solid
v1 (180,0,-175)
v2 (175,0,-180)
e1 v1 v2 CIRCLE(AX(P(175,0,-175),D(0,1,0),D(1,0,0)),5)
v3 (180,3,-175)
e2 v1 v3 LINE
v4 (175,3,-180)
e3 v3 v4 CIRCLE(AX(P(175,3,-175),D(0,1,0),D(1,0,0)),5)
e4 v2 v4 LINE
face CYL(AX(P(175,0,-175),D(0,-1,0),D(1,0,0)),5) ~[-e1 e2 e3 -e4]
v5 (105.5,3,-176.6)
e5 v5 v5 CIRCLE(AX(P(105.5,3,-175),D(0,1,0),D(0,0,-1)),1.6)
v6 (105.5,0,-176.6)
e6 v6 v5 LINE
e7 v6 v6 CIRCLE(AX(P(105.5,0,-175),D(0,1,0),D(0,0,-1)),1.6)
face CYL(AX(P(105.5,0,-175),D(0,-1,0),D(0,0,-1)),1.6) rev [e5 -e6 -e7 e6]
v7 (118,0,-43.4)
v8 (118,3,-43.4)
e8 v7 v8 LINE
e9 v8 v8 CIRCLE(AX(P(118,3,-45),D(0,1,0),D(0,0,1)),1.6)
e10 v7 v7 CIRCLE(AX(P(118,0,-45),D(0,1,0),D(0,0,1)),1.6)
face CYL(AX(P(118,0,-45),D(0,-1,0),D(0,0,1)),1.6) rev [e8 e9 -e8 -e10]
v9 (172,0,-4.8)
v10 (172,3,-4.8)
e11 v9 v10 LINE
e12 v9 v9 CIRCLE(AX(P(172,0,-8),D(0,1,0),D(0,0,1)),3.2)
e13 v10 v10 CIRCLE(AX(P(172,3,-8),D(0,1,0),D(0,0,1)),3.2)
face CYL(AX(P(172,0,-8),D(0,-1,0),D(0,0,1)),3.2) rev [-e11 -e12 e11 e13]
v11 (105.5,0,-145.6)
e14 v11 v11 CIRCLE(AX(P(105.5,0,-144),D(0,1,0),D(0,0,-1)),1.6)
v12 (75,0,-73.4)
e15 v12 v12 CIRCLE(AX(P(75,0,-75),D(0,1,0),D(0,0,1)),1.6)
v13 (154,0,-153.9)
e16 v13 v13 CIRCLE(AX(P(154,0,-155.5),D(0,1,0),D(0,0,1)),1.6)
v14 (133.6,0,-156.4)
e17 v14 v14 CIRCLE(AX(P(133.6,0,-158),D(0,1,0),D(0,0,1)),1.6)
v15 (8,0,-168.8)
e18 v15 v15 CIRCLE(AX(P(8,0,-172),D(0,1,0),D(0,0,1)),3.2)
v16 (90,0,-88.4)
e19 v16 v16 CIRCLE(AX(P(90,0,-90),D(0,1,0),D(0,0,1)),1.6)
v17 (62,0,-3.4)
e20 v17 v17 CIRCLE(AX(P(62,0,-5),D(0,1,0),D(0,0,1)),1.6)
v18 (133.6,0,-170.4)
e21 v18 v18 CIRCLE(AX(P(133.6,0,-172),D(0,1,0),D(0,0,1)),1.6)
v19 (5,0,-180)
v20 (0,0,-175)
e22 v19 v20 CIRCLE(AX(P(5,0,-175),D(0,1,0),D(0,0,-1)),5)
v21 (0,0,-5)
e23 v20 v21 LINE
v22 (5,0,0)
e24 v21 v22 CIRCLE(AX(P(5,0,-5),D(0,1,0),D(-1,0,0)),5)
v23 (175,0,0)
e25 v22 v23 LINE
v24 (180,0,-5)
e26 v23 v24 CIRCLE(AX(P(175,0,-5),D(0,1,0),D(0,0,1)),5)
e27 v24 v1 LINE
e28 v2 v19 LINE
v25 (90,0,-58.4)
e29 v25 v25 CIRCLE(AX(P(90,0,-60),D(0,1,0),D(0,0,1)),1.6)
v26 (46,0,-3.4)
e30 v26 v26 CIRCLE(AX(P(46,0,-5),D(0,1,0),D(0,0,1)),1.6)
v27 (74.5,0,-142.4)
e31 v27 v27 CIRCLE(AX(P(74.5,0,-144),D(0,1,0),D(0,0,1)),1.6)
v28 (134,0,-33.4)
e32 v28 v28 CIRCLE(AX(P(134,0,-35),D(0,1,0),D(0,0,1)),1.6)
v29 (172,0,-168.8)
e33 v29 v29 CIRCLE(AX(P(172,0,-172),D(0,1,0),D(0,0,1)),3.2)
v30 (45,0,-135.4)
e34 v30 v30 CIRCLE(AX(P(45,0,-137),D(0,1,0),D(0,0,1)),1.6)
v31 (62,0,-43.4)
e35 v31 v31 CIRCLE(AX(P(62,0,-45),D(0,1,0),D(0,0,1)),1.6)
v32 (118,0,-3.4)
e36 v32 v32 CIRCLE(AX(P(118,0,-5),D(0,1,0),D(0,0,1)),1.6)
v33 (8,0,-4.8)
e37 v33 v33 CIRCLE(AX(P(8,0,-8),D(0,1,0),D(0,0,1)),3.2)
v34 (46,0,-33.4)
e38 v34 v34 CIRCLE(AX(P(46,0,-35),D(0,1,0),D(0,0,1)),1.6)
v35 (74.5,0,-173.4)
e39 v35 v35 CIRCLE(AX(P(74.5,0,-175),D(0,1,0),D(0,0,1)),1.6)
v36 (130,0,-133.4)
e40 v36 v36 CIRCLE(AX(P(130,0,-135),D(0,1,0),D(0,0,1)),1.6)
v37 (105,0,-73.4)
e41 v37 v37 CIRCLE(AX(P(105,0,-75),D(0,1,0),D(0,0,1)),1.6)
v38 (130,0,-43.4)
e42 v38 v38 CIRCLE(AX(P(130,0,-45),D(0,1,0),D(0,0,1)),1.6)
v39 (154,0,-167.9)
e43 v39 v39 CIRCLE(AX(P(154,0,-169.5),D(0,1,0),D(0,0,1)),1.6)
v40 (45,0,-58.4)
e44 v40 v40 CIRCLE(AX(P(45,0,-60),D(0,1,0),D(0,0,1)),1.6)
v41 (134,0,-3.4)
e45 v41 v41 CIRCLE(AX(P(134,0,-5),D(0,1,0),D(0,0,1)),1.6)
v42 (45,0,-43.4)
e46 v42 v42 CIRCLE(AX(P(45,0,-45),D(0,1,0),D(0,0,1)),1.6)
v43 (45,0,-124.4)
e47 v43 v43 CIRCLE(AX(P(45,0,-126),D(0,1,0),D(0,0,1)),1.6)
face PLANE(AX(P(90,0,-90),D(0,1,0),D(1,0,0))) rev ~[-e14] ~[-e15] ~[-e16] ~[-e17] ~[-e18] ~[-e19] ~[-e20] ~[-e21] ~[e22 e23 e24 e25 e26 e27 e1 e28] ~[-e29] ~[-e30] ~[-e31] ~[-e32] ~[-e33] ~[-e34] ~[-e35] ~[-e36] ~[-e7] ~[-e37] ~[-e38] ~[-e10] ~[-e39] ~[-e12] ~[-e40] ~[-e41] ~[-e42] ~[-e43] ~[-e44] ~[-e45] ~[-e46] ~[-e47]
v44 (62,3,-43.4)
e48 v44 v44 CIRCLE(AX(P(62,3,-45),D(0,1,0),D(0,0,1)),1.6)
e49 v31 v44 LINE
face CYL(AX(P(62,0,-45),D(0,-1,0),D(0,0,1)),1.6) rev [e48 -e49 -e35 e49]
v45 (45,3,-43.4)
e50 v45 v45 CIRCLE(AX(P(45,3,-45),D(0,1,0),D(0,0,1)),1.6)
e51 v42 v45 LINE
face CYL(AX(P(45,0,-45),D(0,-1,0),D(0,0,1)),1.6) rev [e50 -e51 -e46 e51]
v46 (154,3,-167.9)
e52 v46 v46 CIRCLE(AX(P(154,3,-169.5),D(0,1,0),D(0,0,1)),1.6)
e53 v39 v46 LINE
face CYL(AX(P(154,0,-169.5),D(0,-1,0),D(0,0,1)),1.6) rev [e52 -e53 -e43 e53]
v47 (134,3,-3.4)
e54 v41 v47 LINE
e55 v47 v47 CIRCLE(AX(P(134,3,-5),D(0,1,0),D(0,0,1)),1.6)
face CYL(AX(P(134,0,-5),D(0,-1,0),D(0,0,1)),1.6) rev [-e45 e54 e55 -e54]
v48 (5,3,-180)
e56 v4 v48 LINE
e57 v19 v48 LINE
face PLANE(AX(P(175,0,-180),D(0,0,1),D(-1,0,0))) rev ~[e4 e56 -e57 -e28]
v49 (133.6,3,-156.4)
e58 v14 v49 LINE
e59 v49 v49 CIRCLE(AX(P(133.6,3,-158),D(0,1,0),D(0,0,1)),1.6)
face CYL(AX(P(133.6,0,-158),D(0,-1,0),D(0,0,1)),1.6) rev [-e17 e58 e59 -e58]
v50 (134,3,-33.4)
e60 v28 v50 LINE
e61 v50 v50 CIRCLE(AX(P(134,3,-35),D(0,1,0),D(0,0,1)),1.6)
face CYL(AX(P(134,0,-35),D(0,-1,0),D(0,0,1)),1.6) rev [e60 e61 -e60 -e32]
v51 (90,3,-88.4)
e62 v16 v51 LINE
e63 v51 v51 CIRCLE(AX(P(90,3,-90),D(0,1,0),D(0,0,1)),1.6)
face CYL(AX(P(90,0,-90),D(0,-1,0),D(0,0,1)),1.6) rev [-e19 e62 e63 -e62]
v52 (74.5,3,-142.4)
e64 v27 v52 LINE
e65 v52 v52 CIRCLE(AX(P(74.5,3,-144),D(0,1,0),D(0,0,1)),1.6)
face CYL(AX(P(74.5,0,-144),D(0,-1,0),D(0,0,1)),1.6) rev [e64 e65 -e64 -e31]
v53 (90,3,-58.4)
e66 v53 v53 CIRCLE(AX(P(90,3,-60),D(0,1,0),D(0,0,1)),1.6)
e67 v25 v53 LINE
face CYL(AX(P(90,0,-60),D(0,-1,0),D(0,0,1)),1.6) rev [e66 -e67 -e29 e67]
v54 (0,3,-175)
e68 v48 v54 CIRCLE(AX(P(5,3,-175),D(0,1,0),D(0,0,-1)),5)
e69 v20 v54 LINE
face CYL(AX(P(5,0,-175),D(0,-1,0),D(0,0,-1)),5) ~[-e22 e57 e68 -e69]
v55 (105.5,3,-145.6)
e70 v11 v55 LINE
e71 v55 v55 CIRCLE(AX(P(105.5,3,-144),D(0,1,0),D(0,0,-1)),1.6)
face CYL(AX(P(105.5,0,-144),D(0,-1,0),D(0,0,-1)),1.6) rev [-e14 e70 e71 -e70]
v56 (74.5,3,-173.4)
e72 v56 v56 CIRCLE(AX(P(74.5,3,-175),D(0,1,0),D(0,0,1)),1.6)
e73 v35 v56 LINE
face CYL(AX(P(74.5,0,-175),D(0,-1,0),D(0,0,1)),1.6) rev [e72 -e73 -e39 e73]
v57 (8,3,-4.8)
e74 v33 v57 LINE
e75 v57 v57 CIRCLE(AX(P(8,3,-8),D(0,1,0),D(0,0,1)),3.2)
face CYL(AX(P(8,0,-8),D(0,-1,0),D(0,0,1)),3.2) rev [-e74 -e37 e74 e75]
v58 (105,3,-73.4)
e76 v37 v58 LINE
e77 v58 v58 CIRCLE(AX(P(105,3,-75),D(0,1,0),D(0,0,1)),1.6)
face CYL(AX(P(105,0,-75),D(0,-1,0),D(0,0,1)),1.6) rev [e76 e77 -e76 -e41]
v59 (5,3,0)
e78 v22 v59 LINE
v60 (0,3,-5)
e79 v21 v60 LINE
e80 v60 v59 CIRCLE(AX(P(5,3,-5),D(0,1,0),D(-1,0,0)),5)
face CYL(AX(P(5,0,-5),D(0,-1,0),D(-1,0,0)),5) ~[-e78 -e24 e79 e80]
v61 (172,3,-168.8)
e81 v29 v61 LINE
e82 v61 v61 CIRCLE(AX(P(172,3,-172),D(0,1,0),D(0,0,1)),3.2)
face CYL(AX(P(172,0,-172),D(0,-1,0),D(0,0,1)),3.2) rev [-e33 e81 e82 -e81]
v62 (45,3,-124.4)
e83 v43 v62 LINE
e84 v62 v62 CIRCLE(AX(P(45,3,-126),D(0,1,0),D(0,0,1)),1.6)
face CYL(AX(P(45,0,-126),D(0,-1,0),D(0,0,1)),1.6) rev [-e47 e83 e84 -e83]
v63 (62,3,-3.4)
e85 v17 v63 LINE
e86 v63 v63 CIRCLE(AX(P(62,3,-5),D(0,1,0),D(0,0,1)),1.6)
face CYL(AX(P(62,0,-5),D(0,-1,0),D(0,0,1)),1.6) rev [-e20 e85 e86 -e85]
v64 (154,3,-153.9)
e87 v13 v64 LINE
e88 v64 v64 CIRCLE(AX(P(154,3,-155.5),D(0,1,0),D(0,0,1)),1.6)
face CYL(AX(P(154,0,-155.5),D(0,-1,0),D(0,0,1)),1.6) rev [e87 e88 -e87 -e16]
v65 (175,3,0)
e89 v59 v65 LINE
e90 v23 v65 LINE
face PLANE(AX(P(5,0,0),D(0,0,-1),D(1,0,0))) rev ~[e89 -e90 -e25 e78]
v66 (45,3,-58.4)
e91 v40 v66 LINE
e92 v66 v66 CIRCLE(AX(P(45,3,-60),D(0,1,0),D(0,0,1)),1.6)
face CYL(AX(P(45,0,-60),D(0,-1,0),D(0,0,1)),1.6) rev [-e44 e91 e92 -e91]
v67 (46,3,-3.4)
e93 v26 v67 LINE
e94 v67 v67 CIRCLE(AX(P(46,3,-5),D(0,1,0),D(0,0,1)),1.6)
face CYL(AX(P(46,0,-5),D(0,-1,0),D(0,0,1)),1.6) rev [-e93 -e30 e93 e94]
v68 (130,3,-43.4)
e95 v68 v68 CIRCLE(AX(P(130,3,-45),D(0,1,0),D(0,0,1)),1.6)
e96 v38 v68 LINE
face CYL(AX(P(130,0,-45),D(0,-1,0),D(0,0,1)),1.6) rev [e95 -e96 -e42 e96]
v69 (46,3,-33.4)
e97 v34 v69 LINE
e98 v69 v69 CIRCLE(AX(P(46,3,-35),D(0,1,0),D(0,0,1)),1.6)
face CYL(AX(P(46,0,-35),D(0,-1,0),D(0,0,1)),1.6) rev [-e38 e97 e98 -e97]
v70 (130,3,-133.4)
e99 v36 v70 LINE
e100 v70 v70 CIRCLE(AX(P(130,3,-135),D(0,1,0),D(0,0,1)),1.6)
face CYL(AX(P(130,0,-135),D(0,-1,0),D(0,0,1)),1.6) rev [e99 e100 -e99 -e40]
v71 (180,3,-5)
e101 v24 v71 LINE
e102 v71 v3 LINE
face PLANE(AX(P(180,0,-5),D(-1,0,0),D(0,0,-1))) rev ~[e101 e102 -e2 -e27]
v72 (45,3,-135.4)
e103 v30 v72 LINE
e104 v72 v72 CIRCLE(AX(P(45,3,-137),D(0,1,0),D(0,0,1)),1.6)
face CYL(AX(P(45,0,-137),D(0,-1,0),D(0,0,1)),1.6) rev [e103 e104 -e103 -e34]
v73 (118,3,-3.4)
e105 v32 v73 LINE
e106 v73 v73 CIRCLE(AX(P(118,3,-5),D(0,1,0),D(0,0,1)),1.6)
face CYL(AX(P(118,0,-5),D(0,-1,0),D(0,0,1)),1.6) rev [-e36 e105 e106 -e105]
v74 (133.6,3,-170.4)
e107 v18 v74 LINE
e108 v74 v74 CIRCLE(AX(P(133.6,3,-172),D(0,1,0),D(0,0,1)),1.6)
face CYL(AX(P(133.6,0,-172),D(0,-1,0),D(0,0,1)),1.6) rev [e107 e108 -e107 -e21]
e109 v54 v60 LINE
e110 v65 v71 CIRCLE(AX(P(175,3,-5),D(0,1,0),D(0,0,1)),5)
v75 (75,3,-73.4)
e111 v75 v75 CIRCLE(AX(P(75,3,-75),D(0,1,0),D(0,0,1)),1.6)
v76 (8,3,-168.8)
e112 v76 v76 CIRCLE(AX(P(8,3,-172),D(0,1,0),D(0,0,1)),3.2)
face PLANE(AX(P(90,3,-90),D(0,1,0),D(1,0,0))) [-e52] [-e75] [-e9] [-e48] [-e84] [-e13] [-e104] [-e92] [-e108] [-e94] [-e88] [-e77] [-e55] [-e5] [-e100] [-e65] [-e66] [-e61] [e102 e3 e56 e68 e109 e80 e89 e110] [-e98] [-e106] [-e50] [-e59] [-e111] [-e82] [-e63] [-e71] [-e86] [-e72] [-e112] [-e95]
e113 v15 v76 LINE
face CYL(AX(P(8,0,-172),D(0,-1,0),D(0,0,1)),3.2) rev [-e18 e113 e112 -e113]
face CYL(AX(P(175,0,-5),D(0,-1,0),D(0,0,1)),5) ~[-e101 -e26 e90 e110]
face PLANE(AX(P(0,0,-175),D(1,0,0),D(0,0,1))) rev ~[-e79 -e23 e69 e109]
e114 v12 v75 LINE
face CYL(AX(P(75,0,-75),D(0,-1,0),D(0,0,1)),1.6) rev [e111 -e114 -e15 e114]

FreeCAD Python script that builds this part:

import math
import FreeCAD as App
import Part
import Sketcher
from FreeCAD import Vector

doc = App.newDocument("Part")
body = doc.addObject("PartDesign::Body", "Body")

# Sketch on XZ plane
sketch1 = doc.addObject("Sketcher::SketchObject", "Sketch")
body.addObject(sketch1)
sketch1.AttachmentSupport = (doc.XZ_Plane, [""])
sketch1.MapMode = "FlatFace"
sketch1.addGeometry([
    Part.LineSegment(Vector(5, 0, 0), Vector(175, 0, 0)),  # 0
    Part.ArcOfCircle(Part.Circle(Vector(175, -5, 0), Vector(0, 0, 1), 5), math.radians(0), math.radians(90)),  # 1
    Part.LineSegment(Vector(180, -5, 0), Vector(180, -175, 0)),  # 2
    Part.ArcOfCircle(Part.Circle(Vector(175, -175, 0), Vector(0, 0, 1), 5), math.radians(-90), math.radians(0)),  # 3
    Part.LineSegment(Vector(175, -180, 0), Vector(5, -180, 0)),  # 4
    Part.ArcOfCircle(Part.Circle(Vector(5, -175, 0), Vector(0, 0, 1), 5), math.radians(180), math.radians(270)),  # 5
    Part.LineSegment(Vector(0, -175, 0), Vector(0, -5, 0)),  # 6
    Part.ArcOfCircle(Part.Circle(Vector(5, -5, 0), Vector(0, 0, 1), 5), math.radians(90), math.radians(180)),  # 7
    Part.Circle(Vector(8, -8, 0), Vector(0, 0, 1), 3.2),  # 8
    Part.Circle(Vector(46, -5, 0), Vector(0, 0, 1), 1.6),  # 9
    Part.Circle(Vector(46, -35, 0), Vector(0, 0, 1), 1.6),  # 10
    Part.Circle(Vector(45, -45, 0), Vector(0, 0, 1), 1.6),  # 11
    Part.Circle(Vector(62, -5, 0), Vector(0, 0, 1), 1.6),  # 12
    Part.Circle(Vector(62, -45, 0), Vector(0, 0, 1), 1.6),  # 13
    Part.Circle(Vector(45, -60, 0), Vector(0, 0, 1), 1.6),  # 14
    Part.Circle(Vector(75, -75, 0), Vector(0, 0, 1), 1.6),  # 15
    Part.Circle(Vector(118, -5, 0), Vector(0, 0, 1), 1.6),  # 16
    Part.Circle(Vector(118, -45, 0), Vector(0, 0, 1), 1.6),  # 17
    Part.Circle(Vector(130, -45, 0), Vector(0, 0, 1), 1.6),  # 18
    Part.Circle(Vector(134, -5, 0), Vector(0, 0, 1), 1.6),  # 19
    Part.Circle(Vector(172, -8, 0), Vector(0, 0, 1), 3.2),  # 20
    Part.Circle(Vector(134, -35, 0), Vector(0, 0, 1), 1.6),  # 21
    Part.Circle(Vector(90, -60, 0), Vector(0, 0, 1), 1.6),  # 22
    Part.Circle(Vector(105, -75, 0), Vector(0, 0, 1), 1.6),  # 23
    Part.Circle(Vector(45, -126, 0), Vector(0, 0, 1), 1.6),  # 24
    Part.Circle(Vector(45, -137, 0), Vector(0, 0, 1), 1.6),  # 25
    Part.Circle(Vector(8, -172, 0), Vector(0, 0, 1), 3.2),  # 26
    Part.Circle(Vector(74.5, -144, 0), Vector(0, 0, 1), 1.6),  # 27
    Part.Circle(Vector(74.5, -175, 0), Vector(0, 0, 1), 1.6),  # 28
    Part.Circle(Vector(90, -90, 0), Vector(0, 0, 1), 1.6),  # 29
    Part.Circle(Vector(105.5, -144, 0), Vector(0, 0, 1), 1.6),  # 30
    Part.Circle(Vector(130, -135, 0), Vector(0, 0, 1), 1.6),  # 31
    Part.Circle(Vector(105.5, -175, 0), Vector(0, 0, 1), 1.6),  # 32
    Part.Circle(Vector(133.6, -158, 0), Vector(0, 0, 1), 1.6),  # 33
    Part.Circle(Vector(133.6, -172, 0), Vector(0, 0, 1), 1.6),  # 34
    Part.Circle(Vector(154, -155.5, 0), Vector(0, 0, 1), 1.6),  # 35
    Part.Circle(Vector(154, -169.5, 0), Vector(0, 0, 1), 1.6),  # 36
    Part.Circle(Vector(172, -172, 0), Vector(0, 0, 1), 3.2),  # 37
], False)
sketch1.addConstraint([
    Sketcher.Constraint("Tangent", 0, 2, 1, 2),
    Sketcher.Constraint("Tangent", 1, 1, 2, 1),
    Sketcher.Constraint("Tangent", 2, 2, 3, 2),
    Sketcher.Constraint("Tangent", 3, 1, 4, 1),
    Sketcher.Constraint("Tangent", 4, 2, 5, 2),
    Sketcher.Constraint("Tangent", 5, 1, 6, 1),
    Sketcher.Constraint("Tangent", 6, 2, 7, 2),
    Sketcher.Constraint("Tangent", 7, 1, 0, 1),
    Sketcher.Constraint("Horizontal", 0),
    Sketcher.Constraint("Vertical", 2),
    Sketcher.Constraint("Horizontal", 4),
    Sketcher.Constraint("Vertical", 6),
    Sketcher.Constraint("Equal", 1, 3),
    Sketcher.Constraint("Equal", 3, 5),
    Sketcher.Constraint("Equal", 5, 7),
    Sketcher.Constraint("Equal", 9, 10),
    Sketcher.Constraint("Equal", 10, 11),
    Sketcher.Constraint("Equal", 11, 12),
    Sketcher.Constraint("Equal", 12, 13),
    Sketcher.Constraint("Equal", 13, 14),
    Sketcher.Constraint("Equal", 14, 15),
    Sketcher.Constraint("Equal", 15, 16),
    Sketcher.Constraint("Equal", 16, 17),
    Sketcher.Constraint("Equal", 17, 18),
    Sketcher.Constraint("Equal", 18, 19),
    Sketcher.Constraint("Equal", 8, 20),
    Sketcher.Constraint("Equal", 19, 21),
    Sketcher.Constraint("Equal", 21, 22),
    Sketcher.Constraint("Equal", 22, 23),
    Sketcher.Constraint("Equal", 23, 24),
    Sketcher.Constraint("Equal", 24, 25),
    Sketcher.Constraint("Equal", 20, 26),
    Sketcher.Constraint("Equal", 25, 27),
    Sketcher.Constraint("Equal", 27, 28),
    Sketcher.Constraint("Equal", 28, 29),
    Sketcher.Constraint("Equal", 29, 30),
    Sketcher.Constraint("Equal", 30, 31),
    Sketcher.Constraint("Equal", 31, 32),
    Sketcher.Constraint("Equal", 32, 33),
    Sketcher.Constraint("Equal", 33, 34),
    Sketcher.Constraint("Equal", 34, 35),
    Sketcher.Constraint("Equal", 35, 36),
    Sketcher.Constraint("Equal", 26, 37),
    Sketcher.Constraint("PointOnObject", 0, 2, -1),
    Sketcher.Constraint("PointOnObject", 5, 1, -2),
    Sketcher.Constraint("Horizontal", 7, 3, 9, 3),
    Sketcher.Constraint("Horizontal", 9, 3, 12, 3),
    Sketcher.Constraint("Horizontal", 11, 3, 13, 3),
    Sketcher.Constraint("Horizontal", 12, 3, 16, 3),
    Sketcher.Constraint("Horizontal", 13, 3, 17, 3),
    Sketcher.Constraint("Horizontal", 17, 3, 18, 3),
    Sketcher.Constraint("Horizontal", 16, 3, 19, 3),
    Sketcher.Constraint("Horizontal", 8, 3, 20, 3),
    Sketcher.Constraint("Horizontal", 10, 3, 21, 3),
    Sketcher.Constraint("Horizontal", 14, 3, 22, 3),
    Sketcher.Constraint("Horizontal", 15, 3, 23, 3),
    Sketcher.Constraint("Horizontal", 5, 3, 28, 3),
    Sketcher.Constraint("Horizontal", 27, 3, 30, 3),
    Sketcher.Constraint("Horizontal", 28, 3, 32, 3),
    Sketcher.Constraint("Horizontal", 26, 3, 34, 3),
    Sketcher.Constraint("Horizontal", 34, 3, 37, 3),
    Sketcher.Constraint("Vertical", 9, 3, 10, 3),
    Sketcher.Constraint("Vertical", 12, 3, 13, 3),
    Sketcher.Constraint("Vertical", 11, 3, 14, 3),
    Sketcher.Constraint("Vertical", 16, 3, 17, 3),
    Sketcher.Constraint("Vertical", 19, 3, 21, 3),
    Sketcher.Constraint("Vertical", 14, 3, 24, 3),
    Sketcher.Constraint("Vertical", 24, 3, 25, 3),
    Sketcher.Constraint("Vertical", 8, 3, 26, 3),
    Sketcher.Constraint("Vertical", 27, 3, 28, 3),
    Sketcher.Constraint("Vertical", 22, 3, 29, 3),
    Sketcher.Constraint("Vertical", 18, 3, 31, 3),
    Sketcher.Constraint("Vertical", 30, 3, 32, 3),
    Sketcher.Constraint("Vertical", 33, 3, 34, 3),
    Sketcher.Constraint("Vertical", 35, 3, 36, 3),
    Sketcher.Constraint("Vertical", 20, 3, 37, 3),
    Sketcher.Constraint("Equal", 4, 2),
    Sketcher.Constraint("Radius", 1, 5.0),
    Sketcher.Constraint("Diameter", 8, 6.4),
    Sketcher.Constraint("Diameter", 9, 3.2),
    Sketcher.Constraint("DistanceX", 0, 1, 0, 2, 170.0),
    Sketcher.Constraint("DistanceX", -1, 1, 8, 3, 8.0),
    Sketcher.Constraint("DistanceY", 8, 3, -1, 1, 8.0),
    Sketcher.Constraint("DistanceX", -1, 1, 9, 3, 46.0),
    Sketcher.Constraint("DistanceY", 10, 3, -1, 1, 35.0),
    Sketcher.Constraint("DistanceX", -1, 1, 11, 3, 45.0),
    Sketcher.Constraint("DistanceY", 11, 3, -1, 1, 45.0),
    Sketcher.Constraint("DistanceX", -1, 1, 12, 3, 62.0),
    Sketcher.Constraint("DistanceY", 14, 3, -1, 1, 60.0),
    Sketcher.Constraint("DistanceX", -1, 1, 15, 3, 75.0),
    Sketcher.Constraint("DistanceY", 15, 3, -1, 1, 75.0),
    Sketcher.Constraint("DistanceX", -1, 1, 16, 3, 118.0),
    Sketcher.Constraint("DistanceX", -1, 1, 18, 3, 130.0),
    Sketcher.Constraint("DistanceX", -1, 1, 19, 3, 134.0),
    Sketcher.Constraint("DistanceX", -1, 1, 20, 3, 172.0),
    Sketcher.Constraint("DistanceX", -1, 1, 22, 3, 90.0),
    Sketcher.Constraint("DistanceX", -1, 1, 23, 3, 105.0),
    Sketcher.Constraint("DistanceY", 24, 3, -1, 1, 126.0),
    Sketcher.Constraint("DistanceY", 25, 3, -1, 1, 137.0),
    Sketcher.Constraint("DistanceY", 26, 3, -1, 1, 172.0),
    Sketcher.Constraint("DistanceY", 27, 3, -1, 1, 144.0),
    Sketcher.Constraint("DistanceY", 29, 3, -1, 1, 90.0),
    Sketcher.Constraint("DistanceY", 31, 3, -1, 1, 135.0),
    Sketcher.Constraint("DistanceY", 33, 3, -1, 1, 158.0),
    Sketcher.Constraint("DistanceX", -1, 1, 35, 3, 154.0),
    Sketcher.Constraint("DistanceX", 27, 3, 30, 3, 31.0),
    Sketcher.Constraint("DistanceY", 36, 3, 35, 3, 14.0),
    Sketcher.Constraint("DistanceX", -1, 1, 27, 3, 74.5),
    Sketcher.Constraint("DistanceX", -1, 1, 33, 3, 133.6),
    Sketcher.Constraint("DistanceY", 35, 3, -1, 1, 155.5),
])
pad1 = doc.addObject("PartDesign::Pad", "Pad")
body.addObject(pad1)
pad1.Profile = sketch1
pad1.Length = 3
pad1.Reversed = True

doc.recompute()
